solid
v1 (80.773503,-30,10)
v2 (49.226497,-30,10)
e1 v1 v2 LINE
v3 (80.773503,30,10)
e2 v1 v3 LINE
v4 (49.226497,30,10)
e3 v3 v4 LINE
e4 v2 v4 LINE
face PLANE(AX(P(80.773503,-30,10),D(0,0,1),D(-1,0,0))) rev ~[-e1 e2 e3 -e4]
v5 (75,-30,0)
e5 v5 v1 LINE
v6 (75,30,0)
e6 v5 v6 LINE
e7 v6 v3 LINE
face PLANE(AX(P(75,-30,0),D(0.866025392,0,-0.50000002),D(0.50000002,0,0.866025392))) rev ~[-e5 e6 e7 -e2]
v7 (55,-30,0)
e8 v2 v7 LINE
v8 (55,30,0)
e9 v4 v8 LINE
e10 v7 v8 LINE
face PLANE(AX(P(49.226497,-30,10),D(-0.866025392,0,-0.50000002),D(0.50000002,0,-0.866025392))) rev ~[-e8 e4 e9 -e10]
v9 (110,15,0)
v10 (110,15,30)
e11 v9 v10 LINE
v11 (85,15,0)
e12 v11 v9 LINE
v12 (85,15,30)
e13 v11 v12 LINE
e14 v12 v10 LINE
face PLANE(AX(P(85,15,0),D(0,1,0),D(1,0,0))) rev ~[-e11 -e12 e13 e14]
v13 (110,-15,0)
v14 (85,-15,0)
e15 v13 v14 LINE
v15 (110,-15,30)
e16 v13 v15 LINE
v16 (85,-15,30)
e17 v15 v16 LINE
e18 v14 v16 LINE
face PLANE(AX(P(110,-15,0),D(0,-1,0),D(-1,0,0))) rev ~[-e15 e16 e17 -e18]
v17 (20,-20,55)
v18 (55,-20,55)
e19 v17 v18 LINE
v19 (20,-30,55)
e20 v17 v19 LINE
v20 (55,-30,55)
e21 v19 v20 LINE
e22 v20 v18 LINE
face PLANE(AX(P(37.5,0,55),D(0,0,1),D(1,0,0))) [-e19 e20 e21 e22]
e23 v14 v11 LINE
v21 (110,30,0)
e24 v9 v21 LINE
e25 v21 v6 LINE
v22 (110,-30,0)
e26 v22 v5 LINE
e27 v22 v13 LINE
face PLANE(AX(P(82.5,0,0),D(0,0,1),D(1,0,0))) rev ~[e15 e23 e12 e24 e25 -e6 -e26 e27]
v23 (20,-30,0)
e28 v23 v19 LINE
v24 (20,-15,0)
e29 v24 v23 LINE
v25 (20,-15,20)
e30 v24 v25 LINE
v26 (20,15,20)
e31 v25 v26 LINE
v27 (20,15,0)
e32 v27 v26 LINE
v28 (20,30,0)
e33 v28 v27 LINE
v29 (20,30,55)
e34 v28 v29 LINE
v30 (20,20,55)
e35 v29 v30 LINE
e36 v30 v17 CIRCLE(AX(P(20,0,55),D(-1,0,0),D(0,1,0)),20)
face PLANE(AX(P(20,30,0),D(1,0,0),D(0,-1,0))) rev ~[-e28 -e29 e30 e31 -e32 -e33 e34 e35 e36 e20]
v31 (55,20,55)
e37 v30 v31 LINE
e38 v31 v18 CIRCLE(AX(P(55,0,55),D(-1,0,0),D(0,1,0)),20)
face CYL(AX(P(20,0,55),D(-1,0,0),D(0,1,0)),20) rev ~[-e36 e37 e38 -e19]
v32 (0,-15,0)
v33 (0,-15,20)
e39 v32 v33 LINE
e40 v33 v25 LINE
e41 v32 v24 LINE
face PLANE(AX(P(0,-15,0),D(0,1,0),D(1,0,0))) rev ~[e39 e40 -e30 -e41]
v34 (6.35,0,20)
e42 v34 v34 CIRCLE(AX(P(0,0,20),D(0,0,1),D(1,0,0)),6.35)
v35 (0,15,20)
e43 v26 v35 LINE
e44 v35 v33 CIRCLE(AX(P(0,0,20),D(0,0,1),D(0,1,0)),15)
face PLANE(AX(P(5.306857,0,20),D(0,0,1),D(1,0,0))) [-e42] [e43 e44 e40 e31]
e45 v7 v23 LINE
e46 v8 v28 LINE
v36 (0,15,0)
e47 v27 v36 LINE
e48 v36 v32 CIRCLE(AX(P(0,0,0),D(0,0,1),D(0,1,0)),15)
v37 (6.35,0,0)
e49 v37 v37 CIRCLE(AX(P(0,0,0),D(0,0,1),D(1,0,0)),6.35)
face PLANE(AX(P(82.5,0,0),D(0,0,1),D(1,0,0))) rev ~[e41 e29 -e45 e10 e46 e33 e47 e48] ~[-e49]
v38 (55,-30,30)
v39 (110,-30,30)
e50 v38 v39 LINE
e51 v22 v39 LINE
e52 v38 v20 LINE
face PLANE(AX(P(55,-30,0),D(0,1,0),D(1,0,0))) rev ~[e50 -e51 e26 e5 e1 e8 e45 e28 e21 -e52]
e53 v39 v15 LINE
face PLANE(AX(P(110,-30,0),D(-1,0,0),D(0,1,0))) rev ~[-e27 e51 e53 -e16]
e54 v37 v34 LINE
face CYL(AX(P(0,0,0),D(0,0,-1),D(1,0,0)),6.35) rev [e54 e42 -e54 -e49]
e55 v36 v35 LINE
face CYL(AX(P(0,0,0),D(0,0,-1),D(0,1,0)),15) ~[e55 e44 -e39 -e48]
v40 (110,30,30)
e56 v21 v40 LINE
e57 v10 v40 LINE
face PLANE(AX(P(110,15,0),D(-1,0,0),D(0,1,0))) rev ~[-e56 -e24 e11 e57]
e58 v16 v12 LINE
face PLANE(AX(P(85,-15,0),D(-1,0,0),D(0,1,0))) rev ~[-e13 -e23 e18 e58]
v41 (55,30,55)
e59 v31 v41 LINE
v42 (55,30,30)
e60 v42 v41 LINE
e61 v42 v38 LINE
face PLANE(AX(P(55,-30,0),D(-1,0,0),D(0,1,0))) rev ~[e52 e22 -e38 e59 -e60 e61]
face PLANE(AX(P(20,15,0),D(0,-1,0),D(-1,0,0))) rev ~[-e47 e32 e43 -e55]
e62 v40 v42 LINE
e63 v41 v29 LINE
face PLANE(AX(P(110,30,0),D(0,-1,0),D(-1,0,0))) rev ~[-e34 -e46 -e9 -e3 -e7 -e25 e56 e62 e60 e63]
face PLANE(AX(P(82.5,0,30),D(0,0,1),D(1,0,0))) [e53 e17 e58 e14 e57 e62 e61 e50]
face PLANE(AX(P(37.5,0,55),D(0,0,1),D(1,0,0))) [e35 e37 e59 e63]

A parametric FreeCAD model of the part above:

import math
import FreeCAD as App
import Part
import Sketcher

V = App.Vector
Q = App.Units.Quantity

doc = App.newDocument("Part")
params = doc.addObject("Spreadsheet::Sheet", "Params")
for row, (alias, value) in enumerate([
    ("sketch1_radius", "15 mm"),
    ("sketch1_diameter", "12.7 mm"),
    ("sketch1_width", "20 mm"),
    ("pad1_length", "20 mm"),
    ("sketch2_width", "35 mm"),
    ("sketch2_height", "60 mm"),
    ("pad2_length", "55 mm"),
    ("sketch3_width", "55 mm"),
    ("sketch3_width2", "25 mm"),
    ("sketch3_height", "60 mm"),
    ("sketch3_height2", "15 mm"),
    ("pad3_length", "30 mm"),
    ("sketch4_radius", "20 mm"),
    ("sketch5_width", "20 mm"),
], start=1):
    params.set(f"A{row}", alias)
    params.set(f"B{row}", "=" + value)
    params.setAlias(f"B{row}", alias)

body = doc.addObject("PartDesign::Body", "Body")

sketch1 = body.newObject("Sketcher::SketchObject", "Sketch")
sketch1.AttachmentSupport = (doc.getObject("XY_Plane"), [""])
sketch1.MapMode = "FlatFace"
sketch1.addGeometry([
    Part.LineSegment(V(20, 15, 0), V(0, 15, 0)),
    Part.ArcOfCircle(Part.Circle(V(0, 0, 0), V(0, 0, 1), 15), math.radians(90), math.radians(270)),
    Part.LineSegment(V(0, -15, 0), V(20, -15, 0)),
    Part.LineSegment(V(20, -15, 0), V(20, 15, 0)),
    Part.Circle(V(0, 0, 0), V(0, 0, 1), 6),
], False)
sketch1.addConstraint([
    Sketcher.Constraint("Tangent", 0, 2, 1, 1),
    Sketcher.Constraint("Tangent", 1, 2, 2, 1),
    Sketcher.Constraint("Coincident", 2, 2, 3, 1),
    Sketcher.Constraint("Coincident", 3, 2, 0, 1),
    Sketcher.Constraint("Horizontal", 0),
    Sketcher.Constraint("Horizontal", 2),
    Sketcher.Constraint("Vertical", 3),
    Sketcher.Constraint("Coincident", 1, 3, -1, 1),
    Sketcher.Constraint("Coincident", 4, 3, -1, 1),
    Sketcher.Constraint("Radius", 1, Q("15 mm")),
    Sketcher.Constraint("Diameter", 4, Q("12.7 mm")),
    Sketcher.Constraint("DistanceX", 0, 2, 0, 1, Q("20 mm")),
])
sketch1.setExpression("Constraints[9]", "Params.sketch1_radius")
sketch1.setExpression("Constraints[10]", "Params.sketch1_diameter")
sketch1.setExpression("Constraints[11]", "Params.sketch1_width")
pad1 = body.newObject("PartDesign::Pad", "Pad")
pad1.Profile = sketch1
pad1.setExpression("Length", "Params.pad1_length")

sketch2 = body.newObject("Sketcher::SketchObject", "Sketch001")
sketch2.AttachmentSupport = (doc.getObject("XY_Plane"), [""])
sketch2.MapMode = "FlatFace"
sketch2.addGeometry([
    Part.LineSegment(V(20, 30, 0), V(20, -30, 0)),
    Part.LineSegment(V(20, -30, 0), V(55, -30, 0)),
    Part.LineSegment(V(55, -30, 0), V(55, 30, 0)),
    Part.LineSegment(V(55, 30, 0), V(20, 30, 0)),
], False)
sketch2.addConstraint([
    Sketcher.Constraint("Coincident", 0, 2, 1, 1),
    Sketcher.Constraint("Coincident", 1, 2, 2, 1),
    Sketcher.Constraint("Coincident", 2, 2, 3, 1),
    Sketcher.Constraint("Coincident", 3, 2, 0, 1),
    Sketcher.Constraint("Vertical", 0),
    Sketcher.Constraint("Horizontal", 1),
    Sketcher.Constraint("Vertical", 2),
    Sketcher.Constraint("Horizontal", 3),
    Sketcher.Constraint("DistanceX", 1, 1, 1, 2, Q("35 mm")),
    Sketcher.Constraint("DistanceY", 0, 2, 0, 1, Q("60 mm")),
    Sketcher.Constraint("DistanceX", -1, 1, 0, 2, Q("20 mm")),
    Sketcher.Constraint("DistanceY", 0, 2, -1, 1, Q("30 mm")),
])
sketch2.setExpression("Constraints[8]", "Params.sketch2_width")
sketch2.setExpression("Constraints[9]", "Params.sketch2_height")
pad2 = body.newObject("PartDesign::Pad", "Pad001")
pad2.Profile = sketch2
pad2.setExpression("Length", "Params.pad2_length")

sketch3 = body.newObject("Sketcher::SketchObject", "Sketch002")
sketch3.AttachmentSupport = (doc.getObject("XY_Plane"), [""])
sketch3.MapMode = "FlatFace"
sketch3.addGeometry([
    Part.LineSegment(V(110, 30, 0), V(55, 30, 0)),
    Part.LineSegment(V(55, 30, 0), V(55, -30, 0)),
    Part.LineSegment(V(55, -30, 0), V(110, -30, 0)),
    Part.LineSegment(V(110, -30, 0), V(110, -15, 0)),
    Part.LineSegment(V(110, -15, 0), V(85, -15, 0)),
    Part.LineSegment(V(85, -15, 0), V(85, 15, 0)),
    Part.LineSegment(V(85, 15, 0), V(110, 15, 0)),
    Part.LineSegment(V(110, 15, 0), V(110, 30, 0)),
], False)
sketch3.addConstraint([
    Sketcher.Constraint("Coincident", 0, 2, 1, 1),
    Sketcher.Constraint("Coincident", 1, 2, 2, 1),
    Sketcher.Constraint("Coincident", 2, 2, 3, 1),
    Sketcher.Constraint("Coincident", 3, 2, 4, 1),
    Sketcher.Constraint("Coincident", 4, 2, 5, 1),
    Sketcher.Constraint("Coincident", 5, 2, 6, 1),
    Sketcher.Constraint("Coincident", 6, 2, 7, 1),
    Sketcher.Constraint("Coincident", 7, 2, 0, 1),
    Sketcher.Constraint("Horizontal", 0),
    Sketcher.Constraint("Vertical", 1),
    Sketcher.Constraint("Horizontal", 2),
    Sketcher.Constraint("Vertical", 3),
    Sketcher.Constraint("Horizontal", 4),
    Sketcher.Constraint("Vertical", 5),
    Sketcher.Constraint("Horizontal", 6),
    Sketcher.Constraint("Vertical", 7),
    Sketcher.Constraint("Symmetric", 3, 2, 6, 2, -1),
    Sketcher.Constraint("Equal", 3, 7),
    Sketcher.Constraint("DistanceX", 0, 2, 0, 1, Q("55 mm")),
    Sketcher.Constraint("DistanceX", 4, 2, 4, 1, Q("25 mm")),
    Sketcher.Constraint("DistanceY", 1, 2, 1, 1, Q("60 mm")),
    Sketcher.Constraint("DistanceY", 3, 1, 3, 2, Q("15 mm")),
    Sketcher.Constraint("DistanceX", -1, 1, 0, 2, Q("55 mm")),
])
sketch3.setExpression("Constraints[18]", "Params.sketch3_width")
sketch3.setExpression("Constraints[19]", "Params.sketch3_width2")
sketch3.setExpression("Constraints[20]", "Params.sketch3_height")
sketch3.setExpression("Constraints[21]", "Params.sketch3_height2")
pad3 = body.newObject("PartDesign::Pad", "Pad002")
pad3.Profile = sketch3
pad3.setExpression("Length", "Params.pad3_length")

sketch4 = body.newObject("Sketcher::SketchObject", "Sketch003")
sketch4.AttachmentSupport = (doc.getObject("YZ_Plane"), [""])
sketch4.MapMode = "FlatFace"
sketch4.AttachmentOffset = App.Placement(V(0, 0, 20), App.Rotation())
sketch4.addGeometry([
    Part.LineSegment(V(-20, 55, 0), V(20, 55, 0)),
    Part.ArcOfCircle(Part.Circle(V(0, 55, 0), V(0, 0, 1), 20), math.radians(180), math.radians(360)),
], False)
sketch4.addConstraint([
    Sketcher.Constraint("Coincident", 0, 1, 1, 1),
    Sketcher.Constraint("Coincident", 1, 2, 0, 2),
    Sketcher.Constraint("Horizontal", 0),
    Sketcher.Constraint("PointOnObject", 1, 3, -2),
    Sketcher.Constraint("Horizontal", 1, 3, 0, 1),
    Sketcher.Constraint("Radius", 1, Q("20 mm")),
    Sketcher.Constraint("DistanceY", -1, 1, 1, 3, Q("55 mm")),
])
sketch4.setExpression("Constraints[5]", "Params.sketch4_radius")
pocket1 = body.newObject("PartDesign::Pocket", "Pocket")
pocket1.Profile = sketch4
pocket1.Type = "ThroughAll"
pocket1.Reversed = True

sketch5 = body.newObject("Sketcher::SketchObject", "Sketch004")
sketch5.AttachmentSupport = (doc.getObject("XZ_Plane"), [""])
sketch5.MapMode = "FlatFace"
sketch5.AttachmentOffset = App.Placement(V(0, 0, 30), App.Rotation())
sketch5.addGeometry([
    Part.LineSegment(V(55, 0, 0), V(75, 0, 0)),
    Part.LineSegment(V(75, 0, 0), V(81, 10, 0)),
    Part.LineSegment(V(81, 10, 0), V(49, 10, 0)),
    Part.LineSegment(V(49, 10, 0), V(55, 0, 0)),
], False)
sketch5.addConstraint([
    Sketcher.Constraint("Coincident", 0, 2, 1, 1),
    Sketcher.Constraint("Coincident", 1, 2, 2, 1),
    Sketcher.Constraint("Coincident", 2, 2, 3, 1),
    Sketcher.Constraint("Coincident", 3, 2, 0, 1),
    Sketcher.Constraint("Horizontal", 0),
    Sketcher.Constraint("Horizontal", 2),
    Sketcher.Constraint("PointOnObject", 0, 2, -1),
    Sketcher.Constraint("Equal", 1, 3),
    Sketcher.Constraint("DistanceX", 0, 1, 0, 2, Q("20 mm")),
    Sketcher.Constraint("Angle", 1, Q("59.999999 deg")),
    Sketcher.Constraint("DistanceX", -1, 1, 0, 2, Q("75 mm")),
    Sketcher.Constraint("DistanceY", -1, 1, 1, 2, Q("10 mm")),
])
sketch5.setExpression("Constraints[8]", "Params.sketch5_width")
pocket2 = body.newObject("PartDesign::Pocket", "Pocket001")
pocket2.Profile = sketch5
pocket2.Type = "ThroughAll"

doc.recompute()
